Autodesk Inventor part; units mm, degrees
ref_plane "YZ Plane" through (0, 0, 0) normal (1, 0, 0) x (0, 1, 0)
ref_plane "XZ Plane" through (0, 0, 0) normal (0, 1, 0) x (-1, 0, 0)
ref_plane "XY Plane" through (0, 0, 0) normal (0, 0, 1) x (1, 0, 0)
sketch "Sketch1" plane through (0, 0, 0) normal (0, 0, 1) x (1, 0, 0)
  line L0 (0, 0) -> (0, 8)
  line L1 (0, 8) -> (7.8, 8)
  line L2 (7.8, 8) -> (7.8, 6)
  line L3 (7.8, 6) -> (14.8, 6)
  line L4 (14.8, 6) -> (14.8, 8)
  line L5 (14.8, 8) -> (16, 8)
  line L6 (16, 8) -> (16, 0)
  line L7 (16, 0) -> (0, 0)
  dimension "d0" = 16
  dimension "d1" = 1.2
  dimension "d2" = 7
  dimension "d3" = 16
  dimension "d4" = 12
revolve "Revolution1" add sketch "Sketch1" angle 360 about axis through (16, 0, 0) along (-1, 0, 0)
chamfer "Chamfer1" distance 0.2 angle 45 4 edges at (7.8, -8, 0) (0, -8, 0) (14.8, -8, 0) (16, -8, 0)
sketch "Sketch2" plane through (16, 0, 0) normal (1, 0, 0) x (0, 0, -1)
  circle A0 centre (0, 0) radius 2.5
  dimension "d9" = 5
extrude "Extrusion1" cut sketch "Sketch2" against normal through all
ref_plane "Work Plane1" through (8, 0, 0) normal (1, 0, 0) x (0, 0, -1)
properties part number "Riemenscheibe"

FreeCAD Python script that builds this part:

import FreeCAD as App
import Part
import Sketcher

V = App.Vector
Q = App.Units.Quantity


def edges_at(feature, points):
    """Names of the edges that pass closest to the given points."""
    edges = feature.Shape.Edges
    near = lambda p: min(range(len(edges)), key=lambda i: edges[i].distToShape(Part.Vertex(*p))[0])
    return sorted({f"Edge{near(p) + 1}" for p in points})


def add_polygon(sketch, points):
    """Adds a closed chain of lines whose ends are joined by coincident constraints."""
    first, n = sketch.GeometryCount, len(points)
    for a, b in zip(points, points[1:] + points[:1]):
        sketch.addGeometry(Part.LineSegment(App.Vector(*a, 0), App.Vector(*b, 0)), False)
    for i in range(n):
        sketch.addConstraint(Sketcher.Constraint("Coincident", first + i, 2, first + (i + 1) % n, 1))

doc = App.newDocument("Part")
body = doc.addObject("PartDesign::Body", "Body")

# Sketch on XY plane
sketch1 = body.newObject("Sketcher::SketchObject", "Sketch")
sketch1.AttachmentSupport = (doc.getObject("XY_Plane"), [""])
sketch1.MapMode = "FlatFace"
add_polygon(sketch1, [(0, 8), (0, 0), (16, 0), (16, 8), (14.8, 8), (14.8, 6), (7.8, 6), (7.8, 8)])  # lines 0-7
sketch1.addConstraint(Sketcher.Constraint("Vertical", 0))
sketch1.addConstraint(Sketcher.Constraint("Horizontal", 1))
sketch1.addConstraint(Sketcher.Constraint("Vertical", 2))
sketch1.addConstraint(Sketcher.Constraint("Horizontal", 3))
sketch1.addConstraint(Sketcher.Constraint("Vertical", 4))
sketch1.addConstraint(Sketcher.Constraint("Horizontal", 5))
sketch1.addConstraint(Sketcher.Constraint("Vertical", 6))
sketch1.addConstraint(Sketcher.Constraint("Horizontal", 7))
sketch1.addConstraint(Sketcher.Constraint("Coincident", 0, 2, -1, 1))
sketch1.addConstraint(Sketcher.Constraint("Horizontal", 3, 2, 6, 2))
sketch1.addConstraint(Sketcher.Constraint("DistanceX", 1, 1, 1, 2, Q("16 mm")))
sketch1.addConstraint(Sketcher.Constraint("DistanceX", 5, 2, 5, 1, Q("7 mm")))
sketch1.addConstraint(Sketcher.Constraint("DistanceX", 3, 2, 3, 1, Q("1.2 mm")))
sketch1.addConstraint(Sketcher.Constraint("DistanceY", 0, 2, 0, 1, Q("8 mm")))
sketch1.addConstraint(Sketcher.Constraint("DistanceY", 4, 2, 4, 1, Q("2 mm")))
revolution = body.newObject("PartDesign::Revolution", "Revolution")
revolution.Profile = sketch1
revolution.ReferenceAxis = (sketch1, ["H_Axis"])
revolution.Angle = 360
doc.recompute()

chamfer = body.newObject("PartDesign::Chamfer", "Chamfer")
chamfer.Base = (revolution, edges_at(revolution, [
    (7.8, -8, 0),
    (0, -8, 0),
    (14.8, -8, 0),
    (16, -8, 0),
]))
chamfer.Size = 0.2

# Sketch on YZ plane
sketch2 = body.newObject("Sketcher::SketchObject", "Sketch001")
sketch2.AttachmentSupport = (doc.getObject("YZ_Plane"), [""])
sketch2.MapMode = "FlatFace"
sketch2.AttachmentOffset = App.Placement(V(0, 0, 16), App.Rotation())
sketch2.addGeometry(Part.Circle(V(0, 0, 0), V(0, 0, 1), 2.5), False)
sketch2.addConstraint(Sketcher.Constraint("Coincident", 0, 3, -1, 1))
sketch2.addConstraint(Sketcher.Constraint("Diameter", 0, Q("5 mm")))
pocket1 = body.newObject("PartDesign::Pocket", "Pocket")
pocket1.Profile = sketch2
pocket1.Type = "ThroughAll"

doc.recompute()
